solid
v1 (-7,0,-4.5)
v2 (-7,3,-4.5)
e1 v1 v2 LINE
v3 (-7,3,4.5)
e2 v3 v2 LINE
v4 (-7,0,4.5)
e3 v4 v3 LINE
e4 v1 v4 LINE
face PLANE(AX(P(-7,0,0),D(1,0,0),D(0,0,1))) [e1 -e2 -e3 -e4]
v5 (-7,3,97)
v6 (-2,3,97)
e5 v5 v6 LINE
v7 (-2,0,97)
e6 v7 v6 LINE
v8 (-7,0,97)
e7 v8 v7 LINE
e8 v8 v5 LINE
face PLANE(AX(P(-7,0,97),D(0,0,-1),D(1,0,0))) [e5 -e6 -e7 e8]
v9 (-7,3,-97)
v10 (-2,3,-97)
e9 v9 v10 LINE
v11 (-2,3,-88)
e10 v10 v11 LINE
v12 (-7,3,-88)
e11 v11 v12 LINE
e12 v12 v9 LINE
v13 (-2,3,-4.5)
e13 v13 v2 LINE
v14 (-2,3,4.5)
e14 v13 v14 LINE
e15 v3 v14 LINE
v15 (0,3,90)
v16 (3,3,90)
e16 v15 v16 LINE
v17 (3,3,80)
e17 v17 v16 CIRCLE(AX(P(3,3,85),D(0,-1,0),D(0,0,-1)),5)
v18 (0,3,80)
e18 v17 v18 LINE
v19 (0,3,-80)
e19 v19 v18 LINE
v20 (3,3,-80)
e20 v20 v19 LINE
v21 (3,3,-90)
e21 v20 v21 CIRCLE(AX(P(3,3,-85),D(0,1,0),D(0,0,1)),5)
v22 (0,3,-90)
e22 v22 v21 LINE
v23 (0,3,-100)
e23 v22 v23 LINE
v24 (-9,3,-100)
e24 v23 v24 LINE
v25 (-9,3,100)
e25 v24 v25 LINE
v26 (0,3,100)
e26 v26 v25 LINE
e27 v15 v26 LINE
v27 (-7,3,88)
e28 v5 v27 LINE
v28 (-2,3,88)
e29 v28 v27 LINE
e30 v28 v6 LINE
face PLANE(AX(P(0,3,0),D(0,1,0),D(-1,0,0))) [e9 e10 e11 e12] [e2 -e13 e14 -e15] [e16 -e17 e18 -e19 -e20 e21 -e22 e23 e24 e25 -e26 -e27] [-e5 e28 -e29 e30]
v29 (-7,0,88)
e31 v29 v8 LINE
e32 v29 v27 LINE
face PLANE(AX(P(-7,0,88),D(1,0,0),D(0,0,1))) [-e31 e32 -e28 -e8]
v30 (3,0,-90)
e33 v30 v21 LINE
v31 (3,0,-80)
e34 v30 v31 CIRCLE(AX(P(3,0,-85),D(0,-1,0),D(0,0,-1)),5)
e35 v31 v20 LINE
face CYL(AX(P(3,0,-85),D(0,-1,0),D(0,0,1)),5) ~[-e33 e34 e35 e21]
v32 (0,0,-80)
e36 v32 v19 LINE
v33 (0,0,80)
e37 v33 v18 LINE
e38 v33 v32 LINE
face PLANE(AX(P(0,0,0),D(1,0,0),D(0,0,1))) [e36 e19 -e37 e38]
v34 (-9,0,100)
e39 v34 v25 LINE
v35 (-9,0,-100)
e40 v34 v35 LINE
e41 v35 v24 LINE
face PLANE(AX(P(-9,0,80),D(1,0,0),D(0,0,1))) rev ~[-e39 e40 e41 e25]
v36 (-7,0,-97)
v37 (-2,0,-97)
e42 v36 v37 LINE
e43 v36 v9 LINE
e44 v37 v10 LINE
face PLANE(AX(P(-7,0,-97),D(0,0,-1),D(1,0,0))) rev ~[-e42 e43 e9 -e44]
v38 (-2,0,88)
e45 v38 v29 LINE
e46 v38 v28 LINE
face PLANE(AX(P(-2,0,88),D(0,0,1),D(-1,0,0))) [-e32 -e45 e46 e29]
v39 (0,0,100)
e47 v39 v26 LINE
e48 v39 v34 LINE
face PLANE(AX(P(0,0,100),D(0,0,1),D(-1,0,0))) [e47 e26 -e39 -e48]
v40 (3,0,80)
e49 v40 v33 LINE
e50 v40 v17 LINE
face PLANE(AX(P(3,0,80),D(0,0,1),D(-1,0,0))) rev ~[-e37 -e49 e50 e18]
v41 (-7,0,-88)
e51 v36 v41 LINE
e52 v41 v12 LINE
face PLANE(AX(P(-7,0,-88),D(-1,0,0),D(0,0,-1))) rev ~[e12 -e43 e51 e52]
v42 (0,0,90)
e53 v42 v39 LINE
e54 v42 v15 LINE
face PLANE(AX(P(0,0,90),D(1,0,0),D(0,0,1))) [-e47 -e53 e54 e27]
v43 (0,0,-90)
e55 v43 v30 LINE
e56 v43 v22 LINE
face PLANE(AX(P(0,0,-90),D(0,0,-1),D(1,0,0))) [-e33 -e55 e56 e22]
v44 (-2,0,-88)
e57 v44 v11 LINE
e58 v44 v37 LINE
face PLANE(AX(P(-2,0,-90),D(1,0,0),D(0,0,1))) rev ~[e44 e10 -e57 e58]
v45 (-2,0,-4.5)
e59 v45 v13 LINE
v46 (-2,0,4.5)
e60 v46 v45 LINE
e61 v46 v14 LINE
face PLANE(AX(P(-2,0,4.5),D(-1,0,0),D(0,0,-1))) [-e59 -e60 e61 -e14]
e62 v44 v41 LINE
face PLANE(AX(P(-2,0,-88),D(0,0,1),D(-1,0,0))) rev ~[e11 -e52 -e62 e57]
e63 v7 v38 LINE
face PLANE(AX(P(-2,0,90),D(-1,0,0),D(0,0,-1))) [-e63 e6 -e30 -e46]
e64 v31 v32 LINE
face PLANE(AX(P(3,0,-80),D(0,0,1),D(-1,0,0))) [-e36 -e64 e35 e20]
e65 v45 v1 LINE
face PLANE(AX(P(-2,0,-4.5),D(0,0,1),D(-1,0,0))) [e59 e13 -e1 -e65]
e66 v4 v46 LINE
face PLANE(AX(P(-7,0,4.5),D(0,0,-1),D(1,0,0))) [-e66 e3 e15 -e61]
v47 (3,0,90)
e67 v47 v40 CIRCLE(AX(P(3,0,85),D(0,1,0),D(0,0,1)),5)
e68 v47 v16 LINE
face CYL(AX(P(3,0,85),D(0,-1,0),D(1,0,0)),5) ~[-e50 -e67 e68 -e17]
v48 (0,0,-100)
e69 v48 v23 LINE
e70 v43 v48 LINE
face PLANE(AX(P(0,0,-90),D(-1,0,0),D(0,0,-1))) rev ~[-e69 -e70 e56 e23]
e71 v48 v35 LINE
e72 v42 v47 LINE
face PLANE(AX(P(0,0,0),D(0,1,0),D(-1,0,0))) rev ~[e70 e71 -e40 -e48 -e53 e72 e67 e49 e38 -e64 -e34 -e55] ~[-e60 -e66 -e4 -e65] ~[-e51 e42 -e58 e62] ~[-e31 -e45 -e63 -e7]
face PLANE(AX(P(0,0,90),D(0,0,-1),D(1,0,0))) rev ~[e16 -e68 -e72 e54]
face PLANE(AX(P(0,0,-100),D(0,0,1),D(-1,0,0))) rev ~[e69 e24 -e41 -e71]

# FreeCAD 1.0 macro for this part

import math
import FreeCAD as App
import Part
import Sketcher
Q = App.Units.Quantity


def add_polygon(sketch, points):
    """Adds a closed chain of lines whose ends are joined by coincident constraints."""
    first, n = sketch.GeometryCount, len(points)
    for a, b in zip(points, points[1:] + points[:1]):
        sketch.addGeometry(Part.LineSegment(App.Vector(*a, 0), App.Vector(*b, 0)), False)
    for i in range(n):
        sketch.addConstraint(Sketcher.Constraint("Coincident", first + i, 2, first + (i + 1) % n, 1))

doc = App.newDocument("Part")
body = doc.addObject("PartDesign::Body", "Body")

# Sketch on XZ plane
sketch1 = body.newObject("Sketcher::SketchObject", "Sketch")
sketch1.AttachmentSupport = (doc.getObject("XZ_Plane"), [""])
sketch1.MapMode = "FlatFace"
sketch1.addGeometry(Part.LineSegment(App.Vector(3, 80, 0), App.Vector(0, 80, 0)), False)  # 0
sketch1.addGeometry(Part.LineSegment(App.Vector(0, 80, 0), App.Vector(0, -80, 0)), False)  # 1
sketch1.addGeometry(Part.LineSegment(App.Vector(0, -80, 0), App.Vector(3, -80, 0)), False)  # 2
sketch1.addGeometry(Part.ArcOfCircle(Part.Circle(App.Vector(3, -85, 0), App.Vector(0, 0, 1), 5), math.radians(-90), math.radians(90)), False)  # 3
sketch1.addGeometry(Part.LineSegment(App.Vector(3, -90, 0), App.Vector(0, -90, 0)), False)  # 4
sketch1.addGeometry(Part.LineSegment(App.Vector(0, -90, 0), App.Vector(0, -100, 0)), False)  # 5
sketch1.addGeometry(Part.LineSegment(App.Vector(0, -100, 0), App.Vector(-9, -100, 0)), False)  # 6
sketch1.addGeometry(Part.LineSegment(App.Vector(-9, -100, 0), App.Vector(-9, 100, 0)), False)  # 7
sketch1.addGeometry(Part.LineSegment(App.Vector(-9, 100, 0), App.Vector(0, 100, 0)), False)  # 8
sketch1.addGeometry(Part.LineSegment(App.Vector(0, 100, 0), App.Vector(0, 90, 0)), False)  # 9
sketch1.addGeometry(Part.LineSegment(App.Vector(0, 90, 0), App.Vector(3, 90, 0)), False)  # 10
sketch1.addGeometry(Part.ArcOfCircle(Part.Circle(App.Vector(3, 85, 0), App.Vector(0, 0, 1), 5), math.radians(-90), math.radians(90)), False)  # 11
add_polygon(sketch1, [(-2, 88), (-2, 97), (-7, 97), (-7, 88)])  # lines 12-15
add_polygon(sketch1, [(-7, 4.5), (-7, -4.5), (-2, -4.5), (-2, 4.5)])  # lines 16-19
add_polygon(sketch1, [(-7, -88), (-7, -97), (-2, -97), (-2, -88)])  # lines 20-23
sketch1.addConstraint([
    Sketcher.Constraint("Coincident", 0, 2, 1, 1),
    Sketcher.Constraint("Coincident", 1, 2, 2, 1),
    Sketcher.Constraint("Tangent", 2, 2, 3, 2),
    Sketcher.Constraint("Tangent", 3, 1, 4, 1),
    Sketcher.Constraint("Coincident", 4, 2, 5, 1),
    Sketcher.Constraint("Coincident", 5, 2, 6, 1),
    Sketcher.Constraint("Coincident", 6, 2, 7, 1),
    Sketcher.Constraint("Coincident", 7, 2, 8, 1),
    Sketcher.Constraint("Coincident", 8, 2, 9, 1),
    Sketcher.Constraint("Coincident", 9, 2, 10, 1),
    Sketcher.Constraint("Tangent", 10, 2, 11, 2),
    Sketcher.Constraint("Tangent", 11, 1, 0, 1),
    Sketcher.Constraint("Horizontal", 0),
    Sketcher.Constraint("Vertical", 1),
    Sketcher.Constraint("Horizontal", 2),
    Sketcher.Constraint("Horizontal", 4),
    Sketcher.Constraint("Vertical", 5),
    Sketcher.Constraint("Horizontal", 6),
    Sketcher.Constraint("Vertical", 7),
    Sketcher.Constraint("Horizontal", 8),
    Sketcher.Constraint("Vertical", 9),
    Sketcher.Constraint("Horizontal", 10),
    Sketcher.Constraint("Vertical", 12),
    Sketcher.Constraint("Horizontal", 13),
    Sketcher.Constraint("Vertical", 14),
    Sketcher.Constraint("Horizontal", 15),
    Sketcher.Constraint("Vertical", 16),
    Sketcher.Constraint("Horizontal", 17),
    Sketcher.Constraint("Vertical", 18),
    Sketcher.Constraint("Horizontal", 19),
    Sketcher.Constraint("Vertical", 20),
    Sketcher.Constraint("Horizontal", 21),
    Sketcher.Constraint("Vertical", 22),
    Sketcher.Constraint("Horizontal", 23),
    Sketcher.Constraint("Equal", 3, 11),
    Sketcher.Constraint("Symmetric", 0, 2, 1, 2, -1, 1),
    Sketcher.Constraint("Symmetric", 5, 2, 8, 2, -1, 1),
    Sketcher.Constraint("Symmetric", 13, 2, 20, 2, -1),
    Sketcher.Constraint("Symmetric", 15, 2, 22, 2, -1),
    Sketcher.Constraint("PointOnObject", 4, 2, -2),
    Sketcher.Constraint("Vertical", 3, 3, 11, 3),
    Sketcher.Constraint("Vertical", 14, 2, 16, 2),
    Sketcher.Constraint("Vertical", 15, 2, 17, 2),
    Sketcher.Constraint("Equal", 8, 12),
    Sketcher.Constraint("Equal", 14, 16),
    Sketcher.Constraint("Radius", 3, Q("5 mm")),
    Sketcher.Constraint("DistanceX", 0, 2, 0, 1, Q("3 mm")),
    Sketcher.Constraint("DistanceX", 6, 2, 6, 1, Q("9 mm")),
    Sketcher.Constraint("DistanceX", 13, 2, 13, 1, Q("5 mm")),
    Sketcher.Constraint("DistanceY", 1, 2, 1, 1, Q("160 mm")),
    Sketcher.Constraint("DistanceY", 5, 2, 5, 1, Q("10 mm")),
    Sketcher.Constraint("DistanceY", 12, 2, 8, 2, Q("3 mm")),
    Sketcher.Constraint("DistanceX", 12, 2, 10, 2, Q("5 mm")),
    Sketcher.Constraint("DistanceY", 16, 2, -1, 1, Q("4.5 mm")),
])
pad1 = body.newObject("PartDesign::Pad", "Pad")
pad1.Profile = sketch1
pad1.Length = 3
pad1.Reversed = True

doc.recompute()
